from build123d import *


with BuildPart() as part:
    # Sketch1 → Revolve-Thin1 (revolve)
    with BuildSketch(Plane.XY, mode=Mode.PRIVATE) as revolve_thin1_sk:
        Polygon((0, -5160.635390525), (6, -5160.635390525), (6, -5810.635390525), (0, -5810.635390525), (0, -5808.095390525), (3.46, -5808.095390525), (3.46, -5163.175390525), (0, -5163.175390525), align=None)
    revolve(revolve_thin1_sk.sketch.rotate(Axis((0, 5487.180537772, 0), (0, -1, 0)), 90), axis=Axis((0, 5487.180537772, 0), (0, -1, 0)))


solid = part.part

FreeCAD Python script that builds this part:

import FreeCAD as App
import Part
import Sketcher
Q = App.Units.Quantity

doc = App.newDocument("Part")
body = doc.addObject("PartDesign::Body", "Body")

sketch1 = body.newObject("Sketcher::SketchObject", "Sketch")
sketch1.AttachmentSupport = (doc.getObject("XY_Plane"), [""])
sketch1.MapMode = "FlatFace"
sketch1.addGeometry([
    Part.LineSegment(App.Vector(6, -5160.6, 0), App.Vector(0, -5160.6, 0)),
    Part.LineSegment(App.Vector(0, -5160.6, 0), App.Vector(0, -5163.2, 0)),
    Part.LineSegment(App.Vector(0, -5163.2, 0), App.Vector(3.5, -5163.2, 0)),
    Part.LineSegment(App.Vector(3.5, -5163.2, 0), App.Vector(3.5, -5808.1, 0)),
    Part.LineSegment(App.Vector(3.5, -5808.1, 0), App.Vector(0, -5808.1, 0)),
    Part.LineSegment(App.Vector(0, -5808.1, 0), App.Vector(0, -5810.6, 0)),
    Part.LineSegment(App.Vector(0, -5810.6, 0), App.Vector(6, -5810.6, 0)),
    Part.LineSegment(App.Vector(6, -5810.6, 0), App.Vector(6, -5160.6, 0)),
], False)
sketch1.addConstraint([
    Sketcher.Constraint("Coincident", 0, 2, 1, 1),
    Sketcher.Constraint("Coincident", 1, 2, 2, 1),
    Sketcher.Constraint("Coincident", 2, 2, 3, 1),
    Sketcher.Constraint("Coincident", 3, 2, 4, 1),
    Sketcher.Constraint("Coincident", 4, 2, 5, 1),
    Sketcher.Constraint("Coincident", 5, 2, 6, 1),
    Sketcher.Constraint("Coincident", 6, 2, 7, 1),
    Sketcher.Constraint("Coincident", 7, 2, 0, 1),
    Sketcher.Constraint("Horizontal", 0),
    Sketcher.Constraint("Vertical", 1),
    Sketcher.Constraint("Horizontal", 2),
    Sketcher.Constraint("Vertical", 3),
    Sketcher.Constraint("Horizontal", 4),
    Sketcher.Constraint("Vertical", 5),
    Sketcher.Constraint("Horizontal", 6),
    Sketcher.Constraint("Vertical", 7),
    Sketcher.Constraint("PointOnObject", 0, 2, -2),
    Sketcher.Constraint("PointOnObject", 4, 2, -2),
    Sketcher.Constraint("Equal", 1, 5),
    Sketcher.Constraint("DistanceX", 0, 2, 0, 1, Q("6 mm")),
    Sketcher.Constraint("DistanceY", 7, 1, 7, 2, Q("650 mm")),
    Sketcher.Constraint("DistanceX", 2, 1, 2, 2, Q("3.46 mm")),
    Sketcher.Constraint("DistanceY", 1, 2, 1, 1, Q("2.54 mm")),
    Sketcher.Constraint("DistanceY", 0, 2, -1, 1, Q("5160.635391 mm")),
])
revolution = body.newObject("PartDesign::Revolution", "Revolution")
revolution.Profile = sketch1
revolution.ReferenceAxis = (sketch1, ["V_Axis"])
revolution.Angle = 360

doc.recompute()
